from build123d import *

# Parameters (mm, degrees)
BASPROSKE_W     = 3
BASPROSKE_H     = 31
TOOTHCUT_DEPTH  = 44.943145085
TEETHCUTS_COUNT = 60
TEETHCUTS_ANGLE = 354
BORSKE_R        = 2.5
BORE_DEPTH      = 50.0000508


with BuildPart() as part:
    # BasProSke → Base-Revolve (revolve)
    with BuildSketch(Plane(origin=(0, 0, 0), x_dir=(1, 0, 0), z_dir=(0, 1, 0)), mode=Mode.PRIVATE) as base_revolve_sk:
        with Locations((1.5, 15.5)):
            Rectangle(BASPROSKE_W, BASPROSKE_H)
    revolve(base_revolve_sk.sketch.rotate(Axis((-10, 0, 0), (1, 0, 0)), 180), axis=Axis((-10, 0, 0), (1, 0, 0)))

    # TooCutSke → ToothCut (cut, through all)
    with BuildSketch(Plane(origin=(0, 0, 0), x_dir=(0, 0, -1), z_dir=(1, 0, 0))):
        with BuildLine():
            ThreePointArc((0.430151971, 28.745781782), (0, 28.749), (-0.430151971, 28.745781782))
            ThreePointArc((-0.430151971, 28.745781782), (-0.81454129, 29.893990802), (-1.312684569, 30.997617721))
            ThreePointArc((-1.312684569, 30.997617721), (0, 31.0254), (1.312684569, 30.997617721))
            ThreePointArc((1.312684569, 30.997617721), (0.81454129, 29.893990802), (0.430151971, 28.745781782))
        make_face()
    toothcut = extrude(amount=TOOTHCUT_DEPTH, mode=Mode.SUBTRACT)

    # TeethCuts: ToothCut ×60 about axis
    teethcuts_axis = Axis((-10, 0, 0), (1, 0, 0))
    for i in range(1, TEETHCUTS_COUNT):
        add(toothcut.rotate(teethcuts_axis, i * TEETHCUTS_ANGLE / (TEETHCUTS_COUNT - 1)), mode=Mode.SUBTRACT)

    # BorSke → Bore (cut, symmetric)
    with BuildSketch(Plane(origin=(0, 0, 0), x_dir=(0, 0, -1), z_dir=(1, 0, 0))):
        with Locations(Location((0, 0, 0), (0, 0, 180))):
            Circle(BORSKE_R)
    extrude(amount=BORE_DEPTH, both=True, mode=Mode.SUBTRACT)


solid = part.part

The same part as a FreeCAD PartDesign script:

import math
import FreeCAD as App
import Part
import Sketcher

V = App.Vector
Q = App.Units.Quantity


def add_polygon(sketch, points):
    """Adds a closed chain of lines whose ends are joined by coincident constraints."""
    first, n = sketch.GeometryCount, len(points)
    for a, b in zip(points, points[1:] + points[:1]):
        sketch.addGeometry(Part.LineSegment(App.Vector(*a, 0), App.Vector(*b, 0)), False)
    for i in range(n):
        sketch.addConstraint(Sketcher.Constraint("Coincident", first + i, 2, first + (i + 1) % n, 1))

doc = App.newDocument("Part")
body = doc.addObject("PartDesign::Body", "Body")

sketch1 = body.newObject("Sketcher::SketchObject", "Sketch")
sketch1.AttachmentSupport = (doc.getObject("XZ_Plane"), [""])
sketch1.MapMode = "FlatFace"
add_polygon(sketch1, [(0, -31), (0, 0), (3, 0), (3, -31)])
sketch1.addConstraint([
    Sketcher.Constraint("Vertical", 0),
    Sketcher.Constraint("Horizontal", 1),
    Sketcher.Constraint("Vertical", 2),
    Sketcher.Constraint("Horizontal", 3),
    Sketcher.Constraint("Coincident", 0, 2, -1, 1),
    Sketcher.Constraint("DistanceX", 1, 1, 1, 2, Q("3 mm")),
    Sketcher.Constraint("DistanceY", 0, 1, 0, 2, Q("31 mm")),
])
revolution = body.newObject("PartDesign::Revolution", "Revolution")
revolution.Profile = sketch1
revolution.ReferenceAxis = (sketch1, ["H_Axis"])
revolution.Angle = 360

sketch2 = body.newObject("Sketcher::SketchObject", "Sketch001")
sketch2.AttachmentSupport = (doc.getObject("YZ_Plane"), [""])
sketch2.MapMode = "FlatFace"
sketch2.addGeometry([
    Part.ArcOfCircle(Part.Circle(V(0, 0, 0), V(0, 0, 1), 28.7), math.radians(-0.86), math.radians(0.86)),
    Part.ArcOfCircle(Part.Circle(V(25.5, -12, 0), V(0, 0, 1), 12), math.radians(62.82), math.radians(74.38)),
    Part.ArcOfCircle(Part.Circle(V(0, 0, 0), V(0, 0, 1), 31), math.radians(-2.42), math.radians(2.42)),
    Part.ArcOfCircle(Part.Circle(V(25.5, 12, 0), V(0, 0, 1), 12), math.radians(-74.38), math.radians(-62.82)),
], False)
sketch2.addConstraint([
    Sketcher.Constraint("Coincident", 0, 1, 1, 2),
    Sketcher.Constraint("Coincident", 1, 1, 2, 1),
    Sketcher.Constraint("Coincident", 2, 2, 3, 2),
    Sketcher.Constraint("Coincident", 3, 1, 0, 2),
    Sketcher.Constraint("Coincident", 0, 3, -1, 1),
    Sketcher.Constraint("Coincident", 2, 3, -1, 1),
    Sketcher.Constraint("Equal", 1, 3),
    Sketcher.Constraint("Symmetric", 1, 3, 3, 3, -1),
    Sketcher.Constraint("Radius", 1, Q("12 mm")),
    Sketcher.Constraint("Radius", 2, Q("31.0254 mm")),
    Sketcher.Constraint("Radius", 0, Q("28.748996 mm")),
    Sketcher.Constraint("DistanceY", 1, 3, -1, 1, Q("11.98713 mm")),
    Sketcher.Constraint("DistanceY", 0, 1, -1, 1, Q("0.430152 mm")),
])
pocket1 = body.newObject("PartDesign::Pocket", "Pocket")
pocket1.Profile = sketch2
pocket1.Type = "ThroughAll"
pocket1.Reversed = True
doc.recompute()

polarpattern = body.newObject("PartDesign::PolarPattern", "PolarPattern")
polarpattern.Originals = [pocket1]
polarpattern.Axis = (doc.getObject("X_Axis"), [""])
polarpattern.Angle = 360
polarpattern.Occurrences = 60
body.Tip = polarpattern

sketch3 = body.newObject("Sketcher::SketchObject", "Sketch002")
sketch3.AttachmentSupport = (doc.getObject("YZ_Plane"), [""])
sketch3.MapMode = "FlatFace"
sketch3.addGeometry(Part.Circle(V(0, 0, 0), V(0, 0, 1), 2.5), False)
sketch3.addConstraint([
    Sketcher.Constraint("Coincident", 0, 3, -1, 1),
    Sketcher.Constraint("Diameter", 0, Q("5 mm")),
])
pocket2 = body.newObject("PartDesign::Pocket", "Pocket001")
pocket2.Profile = sketch3
pocket2.Length = 100.000102
pocket2.Midplane = True

doc.recompute()
